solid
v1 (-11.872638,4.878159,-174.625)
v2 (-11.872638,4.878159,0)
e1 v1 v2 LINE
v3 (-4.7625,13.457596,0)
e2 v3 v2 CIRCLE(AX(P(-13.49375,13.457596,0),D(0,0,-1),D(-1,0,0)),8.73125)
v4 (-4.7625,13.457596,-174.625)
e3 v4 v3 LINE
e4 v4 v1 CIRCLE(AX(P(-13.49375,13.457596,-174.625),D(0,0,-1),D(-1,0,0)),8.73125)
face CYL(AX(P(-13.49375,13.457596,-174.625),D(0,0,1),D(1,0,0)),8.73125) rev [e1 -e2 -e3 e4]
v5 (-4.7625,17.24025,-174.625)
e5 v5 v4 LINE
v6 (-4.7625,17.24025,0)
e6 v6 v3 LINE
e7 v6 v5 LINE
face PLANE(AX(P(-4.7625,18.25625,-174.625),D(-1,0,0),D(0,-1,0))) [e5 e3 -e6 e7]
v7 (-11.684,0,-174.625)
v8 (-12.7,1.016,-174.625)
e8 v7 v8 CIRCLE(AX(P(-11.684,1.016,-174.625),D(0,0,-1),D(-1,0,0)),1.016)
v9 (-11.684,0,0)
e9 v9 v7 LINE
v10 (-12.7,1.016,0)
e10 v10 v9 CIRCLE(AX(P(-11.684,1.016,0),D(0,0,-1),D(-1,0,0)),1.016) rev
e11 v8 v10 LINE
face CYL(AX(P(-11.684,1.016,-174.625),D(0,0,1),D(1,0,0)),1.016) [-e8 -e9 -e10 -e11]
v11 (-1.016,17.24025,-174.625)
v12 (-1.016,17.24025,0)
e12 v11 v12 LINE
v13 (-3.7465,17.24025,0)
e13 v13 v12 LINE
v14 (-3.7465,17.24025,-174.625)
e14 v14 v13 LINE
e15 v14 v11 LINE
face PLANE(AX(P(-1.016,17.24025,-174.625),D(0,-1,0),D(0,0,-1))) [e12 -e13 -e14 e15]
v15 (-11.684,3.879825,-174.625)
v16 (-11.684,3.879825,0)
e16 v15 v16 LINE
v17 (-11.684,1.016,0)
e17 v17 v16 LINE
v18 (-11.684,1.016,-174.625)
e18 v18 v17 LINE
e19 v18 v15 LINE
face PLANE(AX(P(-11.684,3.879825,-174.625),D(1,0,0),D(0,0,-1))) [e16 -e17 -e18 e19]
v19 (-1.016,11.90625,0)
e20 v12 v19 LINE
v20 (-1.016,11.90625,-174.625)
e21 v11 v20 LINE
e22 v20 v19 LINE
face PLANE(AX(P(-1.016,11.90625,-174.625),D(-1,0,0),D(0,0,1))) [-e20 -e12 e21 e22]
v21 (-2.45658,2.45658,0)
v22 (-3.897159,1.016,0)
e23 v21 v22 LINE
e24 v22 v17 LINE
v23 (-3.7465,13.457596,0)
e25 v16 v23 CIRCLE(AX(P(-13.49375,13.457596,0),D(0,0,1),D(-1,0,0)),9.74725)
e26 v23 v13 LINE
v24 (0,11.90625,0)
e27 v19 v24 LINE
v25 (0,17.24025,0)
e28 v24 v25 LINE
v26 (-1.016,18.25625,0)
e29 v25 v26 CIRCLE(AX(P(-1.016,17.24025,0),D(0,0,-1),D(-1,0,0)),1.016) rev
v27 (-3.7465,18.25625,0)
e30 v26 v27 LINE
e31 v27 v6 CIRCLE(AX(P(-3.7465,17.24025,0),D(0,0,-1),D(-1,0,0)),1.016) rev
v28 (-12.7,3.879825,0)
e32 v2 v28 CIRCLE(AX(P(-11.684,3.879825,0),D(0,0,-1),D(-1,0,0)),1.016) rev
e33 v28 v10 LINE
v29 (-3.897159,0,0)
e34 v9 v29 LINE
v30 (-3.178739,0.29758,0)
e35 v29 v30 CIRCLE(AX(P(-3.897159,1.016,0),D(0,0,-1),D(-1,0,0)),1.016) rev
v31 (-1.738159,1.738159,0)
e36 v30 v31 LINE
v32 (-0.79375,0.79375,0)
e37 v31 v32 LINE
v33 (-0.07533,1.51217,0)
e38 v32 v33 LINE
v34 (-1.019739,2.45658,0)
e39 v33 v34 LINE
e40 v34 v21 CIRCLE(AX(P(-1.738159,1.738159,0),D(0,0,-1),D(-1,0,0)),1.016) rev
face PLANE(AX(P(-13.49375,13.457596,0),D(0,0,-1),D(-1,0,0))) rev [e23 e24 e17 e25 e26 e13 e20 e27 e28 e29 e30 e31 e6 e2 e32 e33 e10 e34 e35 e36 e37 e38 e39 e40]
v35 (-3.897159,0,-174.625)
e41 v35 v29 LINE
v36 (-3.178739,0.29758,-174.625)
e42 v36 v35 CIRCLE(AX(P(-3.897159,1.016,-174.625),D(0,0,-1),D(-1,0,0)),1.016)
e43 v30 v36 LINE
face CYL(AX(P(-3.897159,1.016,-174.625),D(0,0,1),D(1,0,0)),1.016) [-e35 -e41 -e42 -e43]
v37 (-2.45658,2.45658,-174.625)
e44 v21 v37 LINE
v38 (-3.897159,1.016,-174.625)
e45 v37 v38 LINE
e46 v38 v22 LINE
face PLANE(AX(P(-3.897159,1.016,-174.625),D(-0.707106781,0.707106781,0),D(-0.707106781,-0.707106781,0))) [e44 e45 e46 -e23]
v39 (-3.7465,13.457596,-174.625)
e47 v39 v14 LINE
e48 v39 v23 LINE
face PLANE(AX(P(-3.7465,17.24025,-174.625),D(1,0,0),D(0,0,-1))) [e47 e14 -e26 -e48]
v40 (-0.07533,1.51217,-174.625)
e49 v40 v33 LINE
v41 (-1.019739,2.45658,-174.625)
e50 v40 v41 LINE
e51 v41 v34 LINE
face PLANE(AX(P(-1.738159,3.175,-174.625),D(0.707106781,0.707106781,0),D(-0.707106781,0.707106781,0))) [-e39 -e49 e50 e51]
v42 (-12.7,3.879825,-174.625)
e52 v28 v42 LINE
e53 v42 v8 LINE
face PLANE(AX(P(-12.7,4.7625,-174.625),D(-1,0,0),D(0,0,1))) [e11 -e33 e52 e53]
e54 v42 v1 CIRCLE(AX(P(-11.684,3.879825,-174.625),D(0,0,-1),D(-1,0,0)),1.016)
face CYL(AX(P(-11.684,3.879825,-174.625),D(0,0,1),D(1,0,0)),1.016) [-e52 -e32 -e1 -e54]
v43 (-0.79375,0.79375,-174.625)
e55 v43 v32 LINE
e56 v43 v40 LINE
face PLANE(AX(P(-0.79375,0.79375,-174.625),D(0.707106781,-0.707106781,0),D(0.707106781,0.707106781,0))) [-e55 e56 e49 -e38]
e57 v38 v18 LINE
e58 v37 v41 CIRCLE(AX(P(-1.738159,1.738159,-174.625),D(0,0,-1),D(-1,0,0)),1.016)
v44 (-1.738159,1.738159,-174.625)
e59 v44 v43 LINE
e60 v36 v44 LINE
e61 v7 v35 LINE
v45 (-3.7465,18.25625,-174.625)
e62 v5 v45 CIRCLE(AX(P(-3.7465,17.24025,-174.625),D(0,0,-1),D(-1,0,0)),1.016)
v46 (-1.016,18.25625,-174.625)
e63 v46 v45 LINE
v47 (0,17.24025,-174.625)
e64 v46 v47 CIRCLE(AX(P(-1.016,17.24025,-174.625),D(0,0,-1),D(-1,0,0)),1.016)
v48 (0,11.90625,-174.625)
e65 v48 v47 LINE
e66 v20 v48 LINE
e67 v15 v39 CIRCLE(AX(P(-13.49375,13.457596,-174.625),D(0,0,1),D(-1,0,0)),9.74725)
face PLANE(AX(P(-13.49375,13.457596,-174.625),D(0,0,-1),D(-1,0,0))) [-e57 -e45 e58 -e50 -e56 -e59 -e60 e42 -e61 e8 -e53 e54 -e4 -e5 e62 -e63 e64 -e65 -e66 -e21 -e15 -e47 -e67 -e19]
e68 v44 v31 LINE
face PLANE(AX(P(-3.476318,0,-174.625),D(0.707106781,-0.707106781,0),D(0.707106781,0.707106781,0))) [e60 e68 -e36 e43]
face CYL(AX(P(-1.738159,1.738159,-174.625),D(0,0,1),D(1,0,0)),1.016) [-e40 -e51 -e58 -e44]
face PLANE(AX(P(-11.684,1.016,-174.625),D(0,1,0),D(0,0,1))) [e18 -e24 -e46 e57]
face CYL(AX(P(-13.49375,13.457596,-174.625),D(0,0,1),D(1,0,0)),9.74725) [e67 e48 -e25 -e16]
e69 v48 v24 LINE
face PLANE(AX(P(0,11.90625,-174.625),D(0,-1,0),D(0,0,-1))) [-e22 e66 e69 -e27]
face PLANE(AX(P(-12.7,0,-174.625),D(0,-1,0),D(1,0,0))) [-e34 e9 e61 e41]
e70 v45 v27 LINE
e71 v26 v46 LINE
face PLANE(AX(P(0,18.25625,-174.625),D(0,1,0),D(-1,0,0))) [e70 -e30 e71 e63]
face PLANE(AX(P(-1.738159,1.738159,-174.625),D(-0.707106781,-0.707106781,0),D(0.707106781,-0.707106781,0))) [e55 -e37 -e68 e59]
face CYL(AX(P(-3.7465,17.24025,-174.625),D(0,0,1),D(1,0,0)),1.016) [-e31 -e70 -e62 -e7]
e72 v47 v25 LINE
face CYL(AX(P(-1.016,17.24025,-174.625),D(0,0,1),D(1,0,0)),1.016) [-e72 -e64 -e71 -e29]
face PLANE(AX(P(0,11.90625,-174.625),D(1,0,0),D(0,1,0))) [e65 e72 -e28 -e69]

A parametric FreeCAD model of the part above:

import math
import FreeCAD as App
import Part
import Sketcher
Q = App.Units.Quantity


def edges_at(feature, points):
    """Names of the edges that pass closest to the given points."""
    edges = feature.Shape.Edges
    near = lambda p: min(range(len(edges)), key=lambda i: edges[i].distToShape(Part.Vertex(*p))[0])
    return sorted({f"Edge{near(p) + 1}" for p in points})

doc = App.newDocument("Part")
body = doc.addObject("PartDesign::Body", "Body")

sketch1 = doc.addObject("Sketcher::SketchObject", "Sketch")
body.addObject(sketch1)
sketch1.AttachmentSupport = (doc.XY_Plane, [""])
sketch1.MapMode = "FlatFace"
sketch1.addGeometry([
    Part.LineSegment(App.Vector(0, 11.9, 0), App.Vector(0, 18.3, 0)),
    Part.LineSegment(App.Vector(0, 18.3, 0), App.Vector(-4.8, 18.3, 0)),
    Part.LineSegment(App.Vector(-4.8, 18.3, 0), App.Vector(-4.8, 13.5, 0)),
    Part.ArcOfCircle(Part.Circle(App.Vector(-13.5, 13.5, 0), App.Vector(0, 0, 1), 8.7), math.radians(-85), math.radians(0)),
    Part.LineSegment(App.Vector(-12.7, 4.8, 0), App.Vector(-12.7, 0, 0)),
    Part.LineSegment(App.Vector(-12.7, 0, 0), App.Vector(-3.5, 0, 0)),
    Part.LineSegment(App.Vector(-3.5, 0, 0), App.Vector(-1.7, 1.7, 0)),
    Part.LineSegment(App.Vector(-1.7, 1.7, 0), App.Vector(-0.8, 0.8, 0)),
    Part.LineSegment(App.Vector(-0.8, 0.8, 0), App.Vector(-0.1, 1.5, 0)),
    Part.LineSegment(App.Vector(-0.1, 1.5, 0), App.Vector(-1.7, 3.2, 0)),
    Part.LineSegment(App.Vector(-1.7, 3.2, 0), App.Vector(-3.9, 1, 0)),
    Part.LineSegment(App.Vector(-3.9, 1, 0), App.Vector(-11.7, 1, 0)),
    Part.LineSegment(App.Vector(-11.7, 1, 0), App.Vector(-11.7, 3.9, 0)),
    Part.ArcOfCircle(Part.Circle(App.Vector(-13.5, 13.5, 0), App.Vector(0, 0, 1), 9.7), math.radians(-79), math.radians(0)),
    Part.LineSegment(App.Vector(-3.7, 13.5, 0), App.Vector(-3.7, 17.2, 0)),
    Part.LineSegment(App.Vector(-3.7, 17.2, 0), App.Vector(-1, 17.2, 0)),
    Part.LineSegment(App.Vector(-1, 17.2, 0), App.Vector(-1, 11.9, 0)),
    Part.LineSegment(App.Vector(-1, 11.9, 0), App.Vector(0, 11.9, 0)),
], False)
sketch1.addConstraint([
    Sketcher.Constraint("Coincident", 0, 2, 1, 1),
    Sketcher.Constraint("Coincident", 1, 2, 2, 1),
    Sketcher.Constraint("Tangent", 2, 2, 3, 2),
    Sketcher.Constraint("Coincident", 3, 1, 4, 1),
    Sketcher.Constraint("Coincident", 4, 2, 5, 1),
    Sketcher.Constraint("Coincident", 5, 2, 6, 1),
    Sketcher.Constraint("Coincident", 6, 2, 7, 1),
    Sketcher.Constraint("Coincident", 7, 2, 8, 1),
    Sketcher.Constraint("Coincident", 8, 2, 9, 1),
    Sketcher.Constraint("Coincident", 9, 2, 10, 1),
    Sketcher.Constraint("Coincident", 10, 2, 11, 1),
    Sketcher.Constraint("Coincident", 11, 2, 12, 1),
    Sketcher.Constraint("Coincident", 12, 2, 13, 1),
    Sketcher.Constraint("Tangent", 13, 2, 14, 1),
    Sketcher.Constraint("Coincident", 14, 2, 15, 1),
    Sketcher.Constraint("Coincident", 15, 2, 16, 1),
    Sketcher.Constraint("Coincident", 16, 2, 17, 1),
    Sketcher.Constraint("Coincident", 17, 2, 0, 1),
    Sketcher.Constraint("Vertical", 0),
    Sketcher.Constraint("Horizontal", 1),
    Sketcher.Constraint("Vertical", 2),
    Sketcher.Constraint("Vertical", 4),
    Sketcher.Constraint("Horizontal", 5),
    Sketcher.Constraint("Horizontal", 11),
    Sketcher.Constraint("Vertical", 12),
    Sketcher.Constraint("Vertical", 14),
    Sketcher.Constraint("Horizontal", 15),
    Sketcher.Constraint("Vertical", 16),
    Sketcher.Constraint("Horizontal", 17),
    Sketcher.Constraint("Coincident", 13, 3, 3, 3),
    Sketcher.Constraint("PointOnObject", 0, 2, -2),
    Sketcher.Constraint("PointOnObject", 4, 2, -1),
    Sketcher.Constraint("Perpendicular", 6, 7),
    Sketcher.Constraint("Perpendicular", 7, 8),
    Sketcher.Constraint("Perpendicular", 8, 9),
    Sketcher.Constraint("Perpendicular", 9, 10),
    Sketcher.Constraint("Vertical", 6, 2, 9, 2),
    Sketcher.Constraint("Equal", 1, 4),
    Sketcher.Constraint("Angle", 6, Q("45 deg")),
    Sketcher.Constraint("Radius", 3, Q("0.34375 in")),
    Sketcher.Constraint("DistanceX", 17, 1, 17, 2, Q("0.04 in")),
    Sketcher.Constraint("DistanceY", 0, 1, 0, 2, Q("0.25 in")),
    Sketcher.Constraint("DistanceY", 16, 2, 16, 1, Q("0.21 in")),
    Sketcher.Constraint("DistanceX", 3, 1, -1, 1, Q("0.5 in")),
    Sketcher.Constraint("Distance", 8, Q("0.04 in")),
    Sketcher.Constraint("DistanceX", 1, 2, 1, 1, Q("0.1875 in")),
    Sketcher.Constraint("DistanceY", -1, 1, 10, 2, Q("0.04 in")),
    Sketcher.Constraint("DistanceX", 11, 2, -1, 1, Q("0.46 in")),
    Sketcher.Constraint("DistanceX", 2, 2, 13, 2, Q("0.04 in")),
    Sketcher.Constraint("DistanceY", -1, 1, 0, 2, Q("0.71875 in")),
    Sketcher.Constraint("DistanceX", 7, 2, -1, 1, Q("0.03125 in")),
    Sketcher.Constraint("DistanceY", -1, 1, 7, 2, Q("0.03125 in")),
    Sketcher.Constraint("DistanceY", -1, 1, 9, 2, Q("0.125 in")),
])
pad1 = doc.addObject("PartDesign::Pad", "Pad")
body.addObject(pad1)
pad1.Profile = sketch1
pad1.Length = Q("6.875 in")
pad1.Reversed = True
doc.recompute()

fillet = doc.addObject("PartDesign::Fillet", "Fillet")
body.addObject(fillet)
fillet.Base = (pad1, edges_at(pad1, [
    (-1.738, 3.175, -87.312),
    (-3.476, 0, -87.312),
    (-12.7, 0, -87.312),
    (-12.7, 4.763, -87.312),
    (-4.763, 18.256, -87.312),
    (0, 18.256, -87.312),
]))
fillet.Radius = Q("0.04 in")

doc.recompute()
